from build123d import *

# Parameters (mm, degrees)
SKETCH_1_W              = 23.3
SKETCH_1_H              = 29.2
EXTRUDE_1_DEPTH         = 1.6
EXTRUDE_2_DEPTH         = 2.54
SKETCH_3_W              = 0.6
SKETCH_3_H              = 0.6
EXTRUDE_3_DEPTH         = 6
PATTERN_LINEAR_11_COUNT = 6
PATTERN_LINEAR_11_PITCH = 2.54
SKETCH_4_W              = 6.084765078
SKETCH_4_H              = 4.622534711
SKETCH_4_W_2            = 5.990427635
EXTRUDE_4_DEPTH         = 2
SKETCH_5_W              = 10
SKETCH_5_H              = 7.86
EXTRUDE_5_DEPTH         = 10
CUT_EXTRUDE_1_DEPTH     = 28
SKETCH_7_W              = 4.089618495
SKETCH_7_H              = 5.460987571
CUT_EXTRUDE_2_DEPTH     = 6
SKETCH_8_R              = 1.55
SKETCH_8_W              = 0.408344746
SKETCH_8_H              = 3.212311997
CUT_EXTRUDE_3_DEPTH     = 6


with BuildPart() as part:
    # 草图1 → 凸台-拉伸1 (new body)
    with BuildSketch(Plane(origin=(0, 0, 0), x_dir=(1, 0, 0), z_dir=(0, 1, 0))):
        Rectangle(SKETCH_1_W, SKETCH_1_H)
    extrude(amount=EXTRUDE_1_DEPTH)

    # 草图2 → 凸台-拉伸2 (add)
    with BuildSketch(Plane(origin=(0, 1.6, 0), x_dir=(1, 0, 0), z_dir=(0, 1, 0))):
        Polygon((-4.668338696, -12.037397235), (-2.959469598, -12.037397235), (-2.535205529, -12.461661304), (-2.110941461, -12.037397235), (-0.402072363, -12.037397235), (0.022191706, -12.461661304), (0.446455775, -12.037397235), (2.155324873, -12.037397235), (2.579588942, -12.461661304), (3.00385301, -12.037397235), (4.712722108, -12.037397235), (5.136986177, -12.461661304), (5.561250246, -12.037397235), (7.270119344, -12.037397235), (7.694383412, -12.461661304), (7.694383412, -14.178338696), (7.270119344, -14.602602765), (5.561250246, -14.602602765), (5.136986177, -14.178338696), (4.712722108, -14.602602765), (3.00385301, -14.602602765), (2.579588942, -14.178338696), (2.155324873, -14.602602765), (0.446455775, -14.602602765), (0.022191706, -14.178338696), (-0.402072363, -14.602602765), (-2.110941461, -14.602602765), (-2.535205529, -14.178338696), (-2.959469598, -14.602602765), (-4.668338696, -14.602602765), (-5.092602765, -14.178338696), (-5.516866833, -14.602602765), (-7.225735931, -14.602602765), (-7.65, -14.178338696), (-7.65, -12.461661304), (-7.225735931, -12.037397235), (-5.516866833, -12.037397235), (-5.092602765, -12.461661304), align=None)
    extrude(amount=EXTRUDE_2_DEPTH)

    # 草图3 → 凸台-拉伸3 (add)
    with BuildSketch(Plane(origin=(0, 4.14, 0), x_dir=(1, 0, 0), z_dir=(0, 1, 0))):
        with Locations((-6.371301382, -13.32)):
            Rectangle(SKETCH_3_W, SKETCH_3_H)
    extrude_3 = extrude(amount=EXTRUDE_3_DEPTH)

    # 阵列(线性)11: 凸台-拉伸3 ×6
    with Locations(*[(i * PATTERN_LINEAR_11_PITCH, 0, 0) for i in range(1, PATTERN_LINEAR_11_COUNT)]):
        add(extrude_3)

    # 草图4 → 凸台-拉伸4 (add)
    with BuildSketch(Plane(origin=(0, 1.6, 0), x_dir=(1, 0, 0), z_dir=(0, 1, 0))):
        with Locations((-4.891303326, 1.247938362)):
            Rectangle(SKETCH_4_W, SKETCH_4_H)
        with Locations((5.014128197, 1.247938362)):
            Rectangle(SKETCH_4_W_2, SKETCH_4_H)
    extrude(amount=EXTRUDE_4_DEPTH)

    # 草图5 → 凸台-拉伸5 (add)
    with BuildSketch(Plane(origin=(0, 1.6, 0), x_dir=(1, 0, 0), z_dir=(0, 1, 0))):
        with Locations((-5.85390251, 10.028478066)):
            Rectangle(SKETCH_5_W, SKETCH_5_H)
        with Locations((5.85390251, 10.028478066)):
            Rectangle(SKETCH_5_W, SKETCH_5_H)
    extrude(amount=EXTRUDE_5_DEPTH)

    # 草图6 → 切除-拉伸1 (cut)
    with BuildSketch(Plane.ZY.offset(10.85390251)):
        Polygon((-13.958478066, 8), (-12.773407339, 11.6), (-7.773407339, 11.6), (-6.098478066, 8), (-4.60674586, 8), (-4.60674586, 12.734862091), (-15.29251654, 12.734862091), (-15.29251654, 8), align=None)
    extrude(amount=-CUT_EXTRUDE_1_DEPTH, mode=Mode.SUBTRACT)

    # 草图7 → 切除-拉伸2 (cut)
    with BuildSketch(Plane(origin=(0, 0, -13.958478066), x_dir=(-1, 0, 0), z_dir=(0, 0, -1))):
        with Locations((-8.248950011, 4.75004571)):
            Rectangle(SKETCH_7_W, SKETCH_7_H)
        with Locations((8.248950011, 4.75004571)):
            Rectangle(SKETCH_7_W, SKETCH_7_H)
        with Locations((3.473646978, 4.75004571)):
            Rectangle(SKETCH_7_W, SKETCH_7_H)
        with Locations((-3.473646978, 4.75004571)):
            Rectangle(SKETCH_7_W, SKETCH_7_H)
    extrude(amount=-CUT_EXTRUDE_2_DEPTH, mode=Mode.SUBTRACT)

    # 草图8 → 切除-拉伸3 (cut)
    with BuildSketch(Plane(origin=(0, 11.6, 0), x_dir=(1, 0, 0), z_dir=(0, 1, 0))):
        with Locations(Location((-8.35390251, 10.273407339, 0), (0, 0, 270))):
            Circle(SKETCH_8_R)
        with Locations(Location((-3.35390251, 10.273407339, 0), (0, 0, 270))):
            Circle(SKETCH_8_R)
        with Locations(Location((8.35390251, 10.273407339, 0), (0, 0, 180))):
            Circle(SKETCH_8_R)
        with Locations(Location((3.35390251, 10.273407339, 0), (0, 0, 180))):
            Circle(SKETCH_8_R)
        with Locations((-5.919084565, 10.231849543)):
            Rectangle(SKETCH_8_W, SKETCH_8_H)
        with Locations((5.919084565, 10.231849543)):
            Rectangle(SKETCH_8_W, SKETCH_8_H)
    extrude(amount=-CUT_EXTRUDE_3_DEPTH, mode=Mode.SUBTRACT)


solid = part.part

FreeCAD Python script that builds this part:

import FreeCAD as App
import Part
import Sketcher

V = App.Vector

doc = App.newDocument("Part")
body = doc.addObject("PartDesign::Body", "Body")

# Sketch on XZ plane
sketch1 = body.newObject("Sketcher::SketchObject", "Sketch")
sketch1.AttachmentSupport = (doc.getObject("XZ_Plane"), [""])
sketch1.MapMode = "FlatFace"
sketch1.addGeometry(Part.LineSegment(V(-12, -15, 0), V(-12, 15, 0)), False)
sketch1.addGeometry(Part.LineSegment(V(-12, 15, 0), V(12, 15, 0)), False)
sketch1.addGeometry(Part.LineSegment(V(12, 15, 0), V(12, -15, 0)), False)
sketch1.addGeometry(Part.LineSegment(V(12, -15, 0), V(-12, -15, 0)), False)
sketch1.addConstraint(Sketcher.Constraint("Coincident", 0, 2, 1, 1))
sketch1.addConstraint(Sketcher.Constraint("Coincident", 1, 2, 2, 1))
sketch1.addConstraint(Sketcher.Constraint("Coincident", 2, 2, 3, 1))
sketch1.addConstraint(Sketcher.Constraint("Coincident", 3, 2, 0, 1))
sketch1.addConstraint(Sketcher.Constraint("Vertical", 0))
sketch1.addConstraint(Sketcher.Constraint("Horizontal", 1))
sketch1.addConstraint(Sketcher.Constraint("Vertical", 2))
sketch1.addConstraint(Sketcher.Constraint("Horizontal", 3))
sketch1.addConstraint(Sketcher.Constraint("Symmetric", 0, 2, 2, 2, -1, 1))
sketch1.addConstraint(Sketcher.Constraint("DistanceX", 1, 1, 1, 2, 23.3))
sketch1.addConstraint(Sketcher.Constraint("DistanceY", 0, 1, 0, 2, 29.2))
pad1 = body.newObject("PartDesign::Pad", "Pad")
pad1.Profile = sketch1
pad1.Length = 1.6
pad1.Reversed = True

# Sketch on XZ plane
sketch2 = body.newObject("Sketcher::SketchObject", "Sketch001")
sketch2.AttachmentSupport = (doc.getObject("XZ_Plane"), [""])
sketch2.MapMode = "FlatFace"
sketch2.AttachmentOffset = App.Placement(V(0, 0, -1.6), App.Rotation())
sketch2.addGeometry(Part.LineSegment(V(-3, 12, 0), V(-4.7, 12, 0)), False)
sketch2.addGeometry(Part.LineSegment(V(-4.7, 12, 0), V(-5.1, 12.5, 0)), False)
sketch2.addGeometry(Part.LineSegment(V(-5.1, 12.5, 0), V(-5.5, 12, 0)), False)
sketch2.addGeometry(Part.LineSegment(V(-5.5, 12, 0), V(-7.2, 12, 0)), False)
sketch2.addGeometry(Part.LineSegment(V(-7.2, 12, 0), V(-7.7, 12.5, 0)), False)
sketch2.addGeometry(Part.LineSegment(V(-7.7, 12.5, 0), V(-7.7, 14.2, 0)), False)
sketch2.addGeometry(Part.LineSegment(V(-7.7, 14.2, 0), V(-7.2, 14.6, 0)), False)
sketch2.addGeometry(Part.LineSegment(V(-7.2, 14.6, 0), V(-5.5, 14.6, 0)), False)
sketch2.addGeometry(Part.LineSegment(V(-5.5, 14.6, 0), V(-5.1, 14.2, 0)), False)
sketch2.addGeometry(Part.LineSegment(V(-5.1, 14.2, 0), V(-4.7, 14.6, 0)), False)
sketch2.addGeometry(Part.LineSegment(V(-4.7, 14.6, 0), V(-3, 14.6, 0)), False)
sketch2.addGeometry(Part.LineSegment(V(-3, 14.6, 0), V(-2.5, 14.2, 0)), False)
sketch2.addGeometry(Part.LineSegment(V(-2.5, 14.2, 0), V(-2.1, 14.6, 0)), False)
sketch2.addGeometry(Part.LineSegment(V(-2.1, 14.6, 0), V(-0.4, 14.6, 0)), False)
sketch2.addGeometry(Part.LineSegment(V(-0.4, 14.6, 0), V(0, 14.2, 0)), False)
sketch2.addGeometry(Part.LineSegment(V(0, 14.2, 0), V(0.4, 14.6, 0)), False)
sketch2.addGeometry(Part.LineSegment(V(0.4, 14.6, 0), V(2.2, 14.6, 0)), False)
sketch2.addGeometry(Part.LineSegment(V(2.2, 14.6, 0), V(2.6, 14.2, 0)), False)
sketch2.addGeometry(Part.LineSegment(V(2.6, 14.2, 0), V(3, 14.6, 0)), False)
sketch2.addGeometry(Part.LineSegment(V(3, 14.6, 0), V(4.7, 14.6, 0)), False)
sketch2.addGeometry(Part.LineSegment(V(4.7, 14.6, 0), V(5.1, 14.2, 0)), False)
sketch2.addGeometry(Part.LineSegment(V(5.1, 14.2, 0), V(5.6, 14.6, 0)), False)
sketch2.addGeometry(Part.LineSegment(V(5.6, 14.6, 0), V(7.3, 14.6, 0)), False)
sketch2.addGeometry(Part.LineSegment(V(7.3, 14.6, 0), V(7.7, 14.2, 0)), False)
sketch2.addGeometry(Part.LineSegment(V(7.7, 14.2, 0), V(7.7, 12.5, 0)), False)
sketch2.addGeometry(Part.LineSegment(V(7.7, 12.5, 0), V(7.3, 12, 0)), False)
sketch2.addGeometry(Part.LineSegment(V(7.3, 12, 0), V(5.6, 12, 0)), False)
sketch2.addGeometry(Part.LineSegment(V(5.6, 12, 0), V(5.1, 12.5, 0)), False)
sketch2.addGeometry(Part.LineSegment(V(5.1, 12.5, 0), V(4.7, 12, 0)), False)
sketch2.addGeometry(Part.LineSegment(V(4.7, 12, 0), V(3, 12, 0)), False)
sketch2.addGeometry(Part.LineSegment(V(3, 12, 0), V(2.6, 12.5, 0)), False)
sketch2.addGeometry(Part.LineSegment(V(2.6, 12.5, 0), V(2.2, 12, 0)), False)
sketch2.addGeometry(Part.LineSegment(V(2.2, 12, 0), V(0.4, 12, 0)), False)
sketch2.addGeometry(Part.LineSegment(V(0.4, 12, 0), V(0, 12.5, 0)), False)
sketch2.addGeometry(Part.LineSegment(V(0, 12.5, 0), V(-0.4, 12, 0)), False)
sketch2.addGeometry(Part.LineSegment(V(-0.4, 12, 0), V(-2.1, 12, 0)), False)
sketch2.addGeometry(Part.LineSegment(V(-2.1, 12, 0), V(-2.5, 12.5, 0)), False)
sketch2.addGeometry(Part.LineSegment(V(-2.5, 12.5, 0), V(-3, 12, 0)), False)
sketch2.addConstraint(Sketcher.Constraint("Coincident", 0, 2, 1, 1))
sketch2.addConstraint(Sketcher.Constraint("Coincident", 1, 2, 2, 1))
sketch2.addConstraint(Sketcher.Constraint("Coincident", 2, 2, 3, 1))
sketch2.addConstraint(Sketcher.Constraint("Coincident", 3, 2, 4, 1))
sketch2.addConstraint(Sketcher.Constraint("Coincident", 4, 2, 5, 1))
sketch2.addConstraint(Sketcher.Constraint("Coincident", 5, 2, 6, 1))
sketch2.addConstraint(Sketcher.Constraint("Coincident", 6, 2, 7, 1))
sketch2.addConstraint(Sketcher.Constraint("Coincident", 7, 2, 8, 1))
sketch2.addConstraint(Sketcher.Constraint("Coincident", 8, 2, 9, 1))
sketch2.addConstraint(Sketcher.Constraint("Coincident", 9, 2, 10, 1))
sketch2.addConstraint(Sketcher.Constraint("Coincident", 10, 2, 11, 1))
sketch2.addConstraint(Sketcher.Constraint("Coincident", 11, 2, 12, 1))
sketch2.addConstraint(Sketcher.Constraint("Coincident", 12, 2, 13, 1))
sketch2.addConstraint(Sketcher.Constraint("Coincident", 13, 2, 14, 1))
sketch2.addConstraint(Sketcher.Constraint("Coincident", 14, 2, 15, 1))
sketch2.addConstraint(Sketcher.Constraint("Coincident", 15, 2, 16, 1))
sketch2.addConstraint(Sketcher.Constraint("Coincident", 16, 2, 17, 1))
sketch2.addConstraint(Sketcher.Constraint("Coincident", 17, 2, 18, 1))
sketch2.addConstraint(Sketcher.Constraint("Coincident", 18, 2, 19, 1))
sketch2.addConstraint(Sketcher.Constraint("Coincident", 19, 2, 20, 1))
sketch2.addConstraint(Sketcher.Constraint("Coincident", 20, 2, 21, 1))
sketch2.addConstraint(Sketcher.Constraint("Coincident", 21, 2, 22, 1))
sketch2.addConstraint(Sketcher.Constraint("Coincident", 22, 2, 23, 1))
sketch2.addConstraint(Sketcher.Constraint("Coincident", 23, 2, 24, 1))
sketch2.addConstraint(Sketcher.Constraint("Coincident", 24, 2, 25, 1))
sketch2.addConstraint(Sketcher.Constraint("Coincident", 25, 2, 26, 1))
sketch2.addConstraint(Sketcher.Constraint("Coincident", 26, 2, 27, 1))
sketch2.addConstraint(Sketcher.Constraint("Coincident", 27, 2, 28, 1))
sketch2.addConstraint(Sketcher.Constraint("Coincident", 28, 2, 29, 1))
sketch2.addConstraint(Sketcher.Constraint("Coincident", 29, 2, 30, 1))
sketch2.addConstraint(Sketcher.Constraint("Coincident", 30, 2, 31, 1))
sketch2.addConstraint(Sketcher.Constraint("Coincident", 31, 2, 32, 1))
sketch2.addConstraint(Sketcher.Constraint("Coincident", 32, 2, 33, 1))
sketch2.addConstraint(Sketcher.Constraint("Coincident", 33, 2, 34, 1))
sketch2.addConstraint(Sketcher.Constraint("Coincident", 34, 2, 35, 1))
sketch2.addConstraint(Sketcher.Constraint("Coincident", 35, 2, 36, 1))
sketch2.addConstraint(Sketcher.Constraint("Coincident", 36, 2, 37, 1))
sketch2.addConstraint(Sketcher.Constraint("Coincident", 37, 2, 0, 1))
sketch2.addConstraint(Sketcher.Constraint("Horizontal", 0))
sketch2.addConstraint(Sketcher.Constraint("Horizontal", 3))
sketch2.addConstraint(Sketcher.Constraint("Vertical", 5))
sketch2.addConstraint(Sketcher.Constraint("Horizontal", 7))
sketch2.addConstraint(Sketcher.Constraint("Horizontal", 10))
sketch2.addConstraint(Sketcher.Constraint("Horizontal", 13))
sketch2.addConstraint(Sketcher.Constraint("Horizontal", 16))
sketch2.addConstraint(Sketcher.Constraint("Horizontal", 19))
sketch2.addConstraint(Sketcher.Constraint("Horizontal", 22))
sketch2.addConstraint(Sketcher.Constraint("Vertical", 24))
sketch2.addConstraint(Sketcher.Constraint("Horizontal", 26))
sketch2.addConstraint(Sketcher.Constraint("Horizontal", 29))
sketch2.addConstraint(Sketcher.Constraint("Horizontal", 32))
sketch2.addConstraint(Sketcher.Constraint("Horizontal", 35))
sketch2.addConstraint(Sketcher.Constraint("Perpendicular", 1, 2))
sketch2.addConstraint(Sketcher.Constraint("Perpendicular", 2, 4))
sketch2.addConstraint(Sketcher.Constraint("Perpendicular", 4, 6))
sketch2.addConstraint(Sketcher.Constraint("Perpendicular", 6, 8))
sketch2.addConstraint(Sketcher.Constraint("Perpendicular", 8, 9))
sketch2.addConstraint(Sketcher.Constraint("Perpendicular", 9, 11))
sketch2.addConstraint(Sketcher.Constraint("Perpendicular", 11, 12))
sketch2.addConstraint(Sketcher.Constraint("Perpendicular", 12, 14))
sketch2.addConstraint(Sketcher.Constraint("Perpendicular", 14, 15))
sketch2.addConstraint(Sketcher.Constraint("Perpendicular", 15, 17))
sketch2.addConstraint(Sketcher.Constraint("Perpendicular", 17, 18))
sketch2.addConstraint(Sketcher.Constraint("Perpendicular", 18, 20))
sketch2.addConstraint(Sketcher.Constraint("Perpendicular", 20, 21))
sketch2.addConstraint(Sketcher.Constraint("Perpendicular", 21, 23))
sketch2.addConstraint(Sketcher.Constraint("Perpendicular", 23, 25))
sketch2.addConstraint(Sketcher.Constraint("Perpendicular", 25, 27))
sketch2.addConstraint(Sketcher.Constraint("Perpendicular", 27, 28))
sketch2.addConstraint(Sketcher.Constraint("Perpendicular", 28, 30))
sketch2.addConstraint(Sketcher.Constraint("Perpendicular", 30, 31))
sketch2.addConstraint(Sketcher.Constraint("Perpendicular", 31, 33))
sketch2.addConstraint(Sketcher.Constraint("Perpendicular", 33, 34))
sketch2.addConstraint(Sketcher.Constraint("Perpendicular", 34, 36))
sketch2.addConstraint(Sketcher.Constraint("Perpendicular", 36, 37))
sketch2.addConstraint(Sketcher.Constraint("Horizontal", 0, 2, 2, 2))
sketch2.addConstraint(Sketcher.Constraint("Horizontal", 1, 2, 4, 2))
sketch2.addConstraint(Sketcher.Constraint("Horizontal", 5, 2, 8, 2))
sketch2.addConstraint(Sketcher.Constraint("Horizontal", 7, 2, 9, 2))
sketch2.addConstraint(Sketcher.Constraint("Horizontal", 8, 2, 11, 2))
sketch2.addConstraint(Sketcher.Constraint("Horizontal", 10, 2, 12, 2))
sketch2.addConstraint(Sketcher.Constraint("Horizontal", 11, 2, 14, 2))
sketch2.addConstraint(Sketcher.Constraint("Horizontal", 13, 2, 15, 2))
sketch2.addConstraint(Sketcher.Constraint("Horizontal", 14, 2, 17, 2))
sketch2.addConstraint(Sketcher.Constraint("Horizontal", 16, 2, 18, 2))
sketch2.addConstraint(Sketcher.Constraint("Horizontal", 17, 2, 20, 2))
sketch2.addConstraint(Sketcher.Constraint("Horizontal", 19, 2, 21, 2))
sketch2.addConstraint(Sketcher.Constraint("Horizontal", 20, 2, 23, 2))
sketch2.addConstraint(Sketcher.Constraint("Horizontal", 4, 2, 24, 2))
sketch2.addConstraint(Sketcher.Constraint("Horizontal", 3, 2, 25, 2))
sketch2.addConstraint(Sketcher.Constraint("Horizontal", 24, 2, 27, 2))
sketch2.addConstraint(Sketcher.Constraint("Horizontal", 26, 2, 28, 2))
sketch2.addConstraint(Sketcher.Constraint("Horizontal", 27, 2, 30, 2))
sketch2.addConstraint(Sketcher.Constraint("Horizontal", 29, 2, 31, 2))
sketch2.addConstraint(Sketcher.Constraint("Horizontal", 30, 2, 33, 2))
sketch2.addConstraint(Sketcher.Constraint("Horizontal", 32, 2, 34, 2))
sketch2.addConstraint(Sketcher.Constraint("Horizontal", 33, 2, 36, 2))
sketch2.addConstraint(Sketcher.Constraint("Vertical", 3, 2, 6, 2))
sketch2.addConstraint(Sketcher.Constraint("Vertical", 2, 2, 7, 2))
sketch2.addConstraint(Sketcher.Constraint("Vertical", 1, 2, 8, 2))
sketch2.addConstraint(Sketcher.Constraint("Vertical", 21, 2, 26, 2))
sketch2.addConstraint(Sketcher.Constraint("Vertical", 18, 2, 29, 2))
sketch2.addConstraint(Sketcher.Constraint("Vertical", 15, 2, 32, 2))
sketch2.addConstraint(Sketcher.Constraint("Vertical", 12, 2, 35, 2))
sketch2.addConstraint(Sketcher.Constraint("Equal", 0, 3))
sketch2.addConstraint(Sketcher.Constraint("Equal", 10, 13))
sketch2.addConstraint(Sketcher.Constraint("Equal", 13, 16))
sketch2.addConstraint(Sketcher.Constraint("Equal", 16, 19))
sketch2.addConstraint(Sketcher.Constraint("Equal", 19, 22))
sketch2.addConstraint(Sketcher.Constraint("Distance", 1, 0.6))
sketch2.addConstraint(Sketcher.Constraint("DistanceX", 4, 2, -1, 1, 7.65))
sketch2.addConstraint(Sketcher.Constraint("DistanceX", 0, 2, 0, 1, 1.708869))
sketch2.addConstraint(Sketcher.Constraint("DistanceY", 5, 1, 5, 2, 1.716677))
sketch2.addConstraint(Sketcher.Constraint("DistanceY", -1, 1, 1, 2, 12.461661))
pad2 = body.newObject("PartDesign::Pad", "Pad001")
pad2.Profile = sketch2
pad2.Length = 2.54
pad2.Reversed = True

# Sketch on XZ plane
sketch3 = body.newObject("Sketcher::SketchObject", "Sketch002")
sketch3.AttachmentSupport = (doc.getObject("XZ_Plane"), [""])
sketch3.MapMode = "FlatFace"
sketch3.AttachmentOffset = App.Placement(V(0, 0, -4.14), App.Rotation())
sketch3.addGeometry(Part.LineSegment(V(-6.7, 13, 0), V(-6.7, 13.6, 0)), False)
sketch3.addGeometry(Part.LineSegment(V(-6.7, 13.6, 0), V(-6.1, 13.6, 0)), False)
sketch3.addGeometry(Part.LineSegment(V(-6.1, 13.6, 0), V(-6.1, 13, 0)), False)
sketch3.addGeometry(Part.LineSegment(V(-6.1, 13, 0), V(-6.7, 13, 0)), False)
sketch3.addConstraint(Sketcher.Constraint("Coincident", 0, 2, 1, 1))
sketch3.addConstraint(Sketcher.Constraint("Coincident", 1, 2, 2, 1))
sketch3.addConstraint(Sketcher.Constraint("Coincident", 2, 2, 3, 1))
sketch3.addConstraint(Sketcher.Constraint("Coincident", 3, 2, 0, 1))
sketch3.addConstraint(Sketcher.Constraint("Vertical", 0))
sketch3.addConstraint(Sketcher.Constraint("Horizontal", 1))
sketch3.addConstraint(Sketcher.Constraint("Vertical", 2))
sketch3.addConstraint(Sketcher.Constraint("Horizontal", 3))
sketch3.addConstraint(Sketcher.Constraint("Equal", 3, 0))
sketch3.addConstraint(Sketcher.Constraint("DistanceX", 1, 1, 1, 2, 0.6))
sketch3.addConstraint(Sketcher.Constraint("DistanceY", -1, 1, 0, 2, 13.62))
sketch3.addConstraint(Sketcher.Constraint("DistanceX", 0, 2, -1, 1, 6.671301))
pad3 = body.newObject("PartDesign::Pad", "Pad002")
pad3.Profile = sketch3
pad3.Length = 6
pad3.Reversed = True
doc.recompute()

linearpattern = body.newObject("PartDesign::LinearPattern", "LinearPattern")
linearpattern.Originals = [pad3]
linearpattern.Direction = (doc.getObject("X_Axis"), [""])
linearpattern.Mode = "offset"
linearpattern.Offset = 2.54
linearpattern.Occurrences = 6
body.Tip = linearpattern

# Sketch on XZ plane
sketch4 = body.newObject("Sketcher::SketchObject", "Sketch003")
sketch4.AttachmentSupport = (doc.getObject("XZ_Plane"), [""])
sketch4.MapMode = "FlatFace"
sketch4.AttachmentOffset = App.Placement(V(0, 0, -1.6), App.Rotation())
sketch4.addGeometry(Part.LineSegment(V(-7.9, -3.6, 0), V(-7.9, 1.1, 0)), False)
sketch4.addGeometry(Part.LineSegment(V(-7.9, 1.1, 0), V(-1.8, 1.1, 0)), False)
sketch4.addGeometry(Part.LineSegment(V(-1.8, 1.1, 0), V(-1.8, -3.6, 0)), False)
sketch4.addGeometry(Part.LineSegment(V(-1.8, -3.6, 0), V(-7.9, -3.6, 0)), False)
sketch4.addGeometry(Part.LineSegment(V(2, -3.6, 0), V(2, 1.1, 0)), False)
sketch4.addGeometry(Part.LineSegment(V(2, 1.1, 0), V(8, 1.1, 0)), False)
sketch4.addGeometry(Part.LineSegment(V(8, 1.1, 0), V(8, -3.6, 0)), False)
sketch4.addGeometry(Part.LineSegment(V(8, -3.6, 0), V(2, -3.6, 0)), False)
sketch4.addConstraint(Sketcher.Constraint("Coincident", 0, 2, 1, 1))
sketch4.addConstraint(Sketcher.Constraint("Coincident", 1, 2, 2, 1))
sketch4.addConstraint(Sketcher.Constraint("Coincident", 2, 2, 3, 1))
sketch4.addConstraint(Sketcher.Constraint("Coincident", 3, 2, 0, 1))
sketch4.addConstraint(Sketcher.Constraint("Coincident", 4, 2, 5, 1))
sketch4.addConstraint(Sketcher.Constraint("Coincident", 5, 2, 6, 1))
sketch4.addConstraint(Sketcher.Constraint("Coincident", 6, 2, 7, 1))
sketch4.addConstraint(Sketcher.Constraint("Coincident", 7, 2, 4, 1))
sketch4.addConstraint(Sketcher.Constraint("Vertical", 0))
sketch4.addConstraint(Sketcher.Constraint("Horizontal", 1))
sketch4.addConstraint(Sketcher.Constraint("Vertical", 2))
sketch4.addConstraint(Sketcher.Constraint("Horizontal", 3))
sketch4.addConstraint(Sketcher.Constraint("Vertical", 4))
sketch4.addConstraint(Sketcher.Constraint("Horizontal", 5))
sketch4.addConstraint(Sketcher.Constraint("Vertical", 6))
sketch4.addConstraint(Sketcher.Constraint("Horizontal", 7))
sketch4.addConstraint(Sketcher.Constraint("Horizontal", 1, 2, 4, 2))
sketch4.addConstraint(Sketcher.Constraint("Horizontal", 3, 2, 6, 2))
sketch4.addConstraint(Sketcher.Constraint("DistanceX", 0, 2, 4, 2, 9.9526))
sketch4.addConstraint(Sketcher.Constraint("DistanceX", 1, 1, 1, 2, 6.084765))
sketch4.addConstraint(Sketcher.Constraint("DistanceX", 5, 1, 5, 2, 5.990428))
sketch4.addConstraint(Sketcher.Constraint("DistanceY", 0, 1, 0, 2, 4.622535))
sketch4.addConstraint(Sketcher.Constraint("DistanceY", -1, 1, 0, 2, 1.063329))
sketch4.addConstraint(Sketcher.Constraint("DistanceX", 1, 2, -1, 1, 1.848921))
pad4 = body.newObject("PartDesign::Pad", "Pad003")
pad4.Profile = sketch4
pad4.Length = 2
pad4.Reversed = True

# Sketch on XZ plane
sketch5 = body.newObject("Sketcher::SketchObject", "Sketch004")
sketch5.AttachmentSupport = (doc.getObject("XZ_Plane"), [""])
sketch5.MapMode = "FlatFace"
sketch5.AttachmentOffset = App.Placement(V(0, 0, -1.6), App.Rotation())
sketch5.addGeometry(Part.LineSegment(V(-11, -14, 0), V(-11, -6, 0)), False)
sketch5.addGeometry(Part.LineSegment(V(-11, -6, 0), V(-1, -6, 0)), False)
sketch5.addGeometry(Part.LineSegment(V(-1, -6, 0), V(-1, -14, 0)), False)
sketch5.addGeometry(Part.LineSegment(V(-1, -14, 0), V(-11, -14, 0)), False)
sketch5.addGeometry(Part.LineSegment(V(1, -14, 0), V(1, -6, 0)), False)
sketch5.addGeometry(Part.LineSegment(V(1, -6, 0), V(11, -6, 0)), False)
sketch5.addGeometry(Part.LineSegment(V(11, -6, 0), V(11, -14, 0)), False)
sketch5.addGeometry(Part.LineSegment(V(11, -14, 0), V(1, -14, 0)), False)
sketch5.addConstraint(Sketcher.Constraint("Coincident", 0, 2, 1, 1))
sketch5.addConstraint(Sketcher.Constraint("Coincident", 1, 2, 2, 1))
sketch5.addConstraint(Sketcher.Constraint("Coincident", 2, 2, 3, 1))
sketch5.addConstraint(Sketcher.Constraint("Coincident", 3, 2, 0, 1))
sketch5.addConstraint(Sketcher.Constraint("Coincident", 4, 2, 5, 1))
sketch5.addConstraint(Sketcher.Constraint("Coincident", 5, 2, 6, 1))
sketch5.addConstraint(Sketcher.Constraint("Coincident", 6, 2, 7, 1))
sketch5.addConstraint(Sketcher.Constraint("Coincident", 7, 2, 4, 1))
sketch5.addConstraint(Sketcher.Constraint("Vertical", 0))
sketch5.addConstraint(Sketcher.Constraint("Horizontal", 1))
sketch5.addConstraint(Sketcher.Constraint("Vertical", 2))
sketch5.addConstraint(Sketcher.Constraint("Horizontal", 3))
sketch5.addConstraint(Sketcher.Constraint("Vertical", 4))
sketch5.addConstraint(Sketcher.Constraint("Horizontal", 5))
sketch5.addConstraint(Sketcher.Constraint("Vertical", 6))
sketch5.addConstraint(Sketcher.Constraint("Horizontal", 7))
sketch5.addConstraint(Sketcher.Constraint("Symmetric", 1, 2, 4, 2, -2))
sketch5.addConstraint(Sketcher.Constraint("Symmetric", 3, 2, 6, 2, -2))
sketch5.addConstraint(Sketcher.Constraint("DistanceX", 1, 1, 1, 2, 10.0))
sketch5.addConstraint(Sketcher.Constraint("DistanceY", 0, 1, 0, 2, 7.86))
sketch5.addConstraint(Sketcher.Constraint("DistanceY", 0, 2, -1, 1, 6.098478))
sketch5.addConstraint(Sketcher.Constraint("DistanceX", 0, 2, -1, 1, 10.853903))
pad5 = body.newObject("PartDesign::Pad", "Pad004")
pad5.Profile = sketch5
pad5.Length = 10
pad5.Reversed = True

# Sketch on YZ plane
sketch6 = body.newObject("Sketcher::SketchObject", "Sketch005")
sketch6.AttachmentSupport = (doc.getObject("YZ_Plane"), [""])
sketch6.MapMode = "FlatFace"
sketch6.AttachmentOffset = App.Placement(V(0, 0, -10.853903), App.Rotation())
sketch6.addGeometry(Part.LineSegment(V(8, -14, 0), V(11.6, -12.8, 0)), False)
sketch6.addGeometry(Part.LineSegment(V(11.6, -12.8, 0), V(11.6, -7.8, 0)), False)
sketch6.addGeometry(Part.LineSegment(V(11.6, -7.8, 0), V(8, -6.1, 0)), False)
sketch6.addGeometry(Part.LineSegment(V(8, -6.1, 0), V(8, -4.6, 0)), False)
sketch6.addGeometry(Part.LineSegment(V(8, -4.6, 0), V(12.7, -4.6, 0)), False)
sketch6.addGeometry(Part.LineSegment(V(12.7, -4.6, 0), V(12.7, -15.3, 0)), False)
sketch6.addGeometry(Part.LineSegment(V(12.7, -15.3, 0), V(8, -15.3, 0)), False)
sketch6.addGeometry(Part.LineSegment(V(8, -15.3, 0), V(8, -14, 0)), False)
sketch6.addConstraint(Sketcher.Constraint("Coincident", 0, 2, 1, 1))
sketch6.addConstraint(Sketcher.Constraint("Coincident", 1, 2, 2, 1))
sketch6.addConstraint(Sketcher.Constraint("Coincident", 2, 2, 3, 1))
sketch6.addConstraint(Sketcher.Constraint("Coincident", 3, 2, 4, 1))
sketch6.addConstraint(Sketcher.Constraint("Coincident", 4, 2, 5, 1))
sketch6.addConstraint(Sketcher.Constraint("Coincident", 5, 2, 6, 1))
sketch6.addConstraint(Sketcher.Constraint("Coincident", 6, 2, 7, 1))
sketch6.addConstraint(Sketcher.Constraint("Coincident", 7, 2, 0, 1))
sketch6.addConstraint(Sketcher.Constraint("Vertical", 1))
sketch6.addConstraint(Sketcher.Constraint("Vertical", 3))
sketch6.addConstraint(Sketcher.Constraint("Horizontal", 4))
sketch6.addConstraint(Sketcher.Constraint("Vertical", 5))
sketch6.addConstraint(Sketcher.Constraint("Horizontal", 6))
sketch6.addConstraint(Sketcher.Constraint("Vertical", 7))
sketch6.addConstraint(Sketcher.Constraint("Vertical", 3, 2, 6, 2))
sketch6.addConstraint(Sketcher.Constraint("DistanceY", 1, 1, 1, 2, 5.0))
sketch6.addConstraint(Sketcher.Constraint("DistanceX", -1, 1, 2, 2, 8.0))
sketch6.addConstraint(Sketcher.Constraint("DistanceX", -1, 1, 0, 2, 11.6))
sketch6.addConstraint(Sketcher.Constraint("DistanceY", 7, 2, 2, 2, 7.86))
sketch6.addConstraint(Sketcher.Constraint("DistanceY", 5, 2, 5, 1, 10.685771))
sketch6.addConstraint(Sketcher.Constraint("DistanceY", 7, 1, 7, 2, 1.334038))
sketch6.addConstraint(Sketcher.Constraint("Distance", 0, 3.790039))
sketch6.addConstraint(Sketcher.Constraint("DistanceX", 4, 1, 4, 2, 4.734862))
sketch6.addConstraint(Sketcher.Constraint("DistanceY", 2, 2, -1, 1, 6.098478))
pocket1 = body.newObject("PartDesign::Pocket", "Pocket")
pocket1.Profile = sketch6
pocket1.Length = 28
pocket1.Reversed = True

# Sketch on XY plane
sketch7 = body.newObject("Sketcher::SketchObject", "Sketch006")
sketch7.AttachmentSupport = (doc.getObject("XY_Plane"), [""])
sketch7.MapMode = "FlatFace"
sketch7.AttachmentOffset = App.Placement(V(0, 0, -13.958478), App.Rotation())
sketch7.addGeometry(Part.LineSegment(V(10.3, 7.5, 0), V(10.3, 2, 0)), False)
sketch7.addGeometry(Part.LineSegment(V(10.3, 2, 0), V(6.2, 2, 0)), False)
sketch7.addGeometry(Part.LineSegment(V(6.2, 2, 0), V(6.2, 7.5, 0)), False)
sketch7.addGeometry(Part.LineSegment(V(6.2, 7.5, 0), V(10.3, 7.5, 0)), False)
sketch7.addGeometry(Part.LineSegment(V(-6.2, 7.5, 0), V(-6.2, 2, 0)), False)
sketch7.addGeometry(Part.LineSegment(V(-6.2, 2, 0), V(-10.3, 2, 0)), False)
sketch7.addGeometry(Part.LineSegment(V(-10.3, 2, 0), V(-10.3, 7.5, 0)), False)
sketch7.addGeometry(Part.LineSegment(V(-10.3, 7.5, 0), V(-6.2, 7.5, 0)), False)
sketch7.addGeometry(Part.LineSegment(V(-1.4, 7.5, 0), V(-1.4, 2, 0)), False)
sketch7.addGeometry(Part.LineSegment(V(-1.4, 2, 0), V(-5.5, 2, 0)), False)
sketch7.addGeometry(Part.LineSegment(V(-5.5, 2, 0), V(-5.5, 7.5, 0)), False)
sketch7.addGeometry(Part.LineSegment(V(-5.5, 7.5, 0), V(-1.4, 7.5, 0)), False)
sketch7.addGeometry(Part.LineSegment(V(5.5, 7.5, 0), V(5.5, 2, 0)), False)
sketch7.addGeometry(Part.LineSegment(V(5.5, 2, 0), V(1.4, 2, 0)), False)
sketch7.addGeometry(Part.LineSegment(V(1.4, 2, 0), V(1.4, 7.5, 0)), False)
sketch7.addGeometry(Part.LineSegment(V(1.4, 7.5, 0), V(5.5, 7.5, 0)), False)
sketch7.addConstraint(Sketcher.Constraint("Coincident", 0, 2, 1, 1))
sketch7.addConstraint(Sketcher.Constraint("Coincident", 1, 2, 2, 1))
sketch7.addConstraint(Sketcher.Constraint("Coincident", 2, 2, 3, 1))
sketch7.addConstraint(Sketcher.Constraint("Coincident", 3, 2, 0, 1))
sketch7.addConstraint(Sketcher.Constraint("Coincident", 4, 2, 5, 1))
sketch7.addConstraint(Sketcher.Constraint("Coincident", 5, 2, 6, 1))
sketch7.addConstraint(Sketcher.Constraint("Coincident", 6, 2, 7, 1))
sketch7.addConstraint(Sketcher.Constraint("Coincident", 7, 2, 4, 1))
sketch7.addConstraint(Sketcher.Constraint("Coincident", 8, 2, 9, 1))
sketch7.addConstraint(Sketcher.Constraint("Coincident", 9, 2, 10, 1))
sketch7.addConstraint(Sketcher.Constraint("Coincident", 10, 2, 11, 1))
sketch7.addConstraint(Sketcher.Constraint("Coincident", 11, 2, 8, 1))
sketch7.addConstraint(Sketcher.Constraint("Coincident", 12, 2, 13, 1))
sketch7.addConstraint(Sketcher.Constraint("Coincident", 13, 2, 14, 1))
sketch7.addConstraint(Sketcher.Constraint("Coincident", 14, 2, 15, 1))
sketch7.addConstraint(Sketcher.Constraint("Coincident", 15, 2, 12, 1))
sketch7.addConstraint(Sketcher.Constraint("Vertical", 0))
sketch7.addConstraint(Sketcher.Constraint("Horizontal", 1))
sketch7.addConstraint(Sketcher.Constraint("Vertical", 2))
sketch7.addConstraint(Sketcher.Constraint("Horizontal", 3))
sketch7.addConstraint(Sketcher.Constraint("Vertical", 4))
sketch7.addConstraint(Sketcher.Constraint("Horizontal", 5))
sketch7.addConstraint(Sketcher.Constraint("Vertical", 6))
sketch7.addConstraint(Sketcher.Constraint("Horizontal", 7))
sketch7.addConstraint(Sketcher.Constraint("Vertical", 8))
sketch7.addConstraint(Sketcher.Constraint("Horizontal", 9))
sketch7.addConstraint(Sketcher.Constraint("Vertical", 10))
sketch7.addConstraint(Sketcher.Constraint("Horizontal", 11))
sketch7.addConstraint(Sketcher.Constraint("Vertical", 12))
sketch7.addConstraint(Sketcher.Constraint("Horizontal", 13))
sketch7.addConstraint(Sketcher.Constraint("Vertical", 14))
sketch7.addConstraint(Sketcher.Constraint("Horizontal", 15))
sketch7.addConstraint(Sketcher.Constraint("Symmetric", 1, 2, 4, 2, -2))
sketch7.addConstraint(Sketcher.Constraint("Symmetric", 3, 2, 6, 2, -2))
sketch7.addConstraint(Sketcher.Constraint("Symmetric", 9, 2, 12, 2, -2))
sketch7.addConstraint(Sketcher.Constraint("Symmetric", 11, 2, 14, 2, -2))
sketch7.addConstraint(Sketcher.Constraint("Horizontal", 5, 2, 8, 2))
sketch7.addConstraint(Sketcher.Constraint("Horizontal", 7, 2, 10, 2))
sketch7.addConstraint(Sketcher.Constraint("Equal", 7, 9))
sketch7.addConstraint(Sketcher.Constraint("DistanceX", 1, 2, 1, 1, 4.089618))
sketch7.addConstraint(Sketcher.Constraint("DistanceX", 4, 2, 0, 2, 16.4979))
sketch7.addConstraint(Sketcher.Constraint("DistanceY", 0, 2, 0, 1, 5.460988))
sketch7.addConstraint(Sketcher.Constraint("DistanceY", -1, 1, 0, 2, 2.019552))
sketch7.addConstraint(Sketcher.Constraint("DistanceX", 8, 2, 1, 2, 7.632978))
pocket2 = body.newObject("PartDesign::Pocket", "Pocket001")
pocket2.Profile = sketch7
pocket2.Length = 6
pocket2.Reversed = True

# Sketch on XZ plane
sketch8 = body.newObject("Sketcher::SketchObject", "Sketch007")
sketch8.AttachmentSupport = (doc.getObject("XZ_Plane"), [""])
sketch8.MapMode = "FlatFace"
sketch8.AttachmentOffset = App.Placement(V(0, 0, -11.6), App.Rotation())
sketch8.addGeometry(Part.Circle(V(-8.35, -10.27, 0), V(0, 0, 1), 1.55), False)
sketch8.addGeometry(Part.Circle(V(-3.35, -10.27, 0), V(0, 0, 1), 1.55), False)
sketch8.addGeometry(Part.Circle(V(8.35, -10.27, 0), V(0, 0, 1), 1.55), False)
sketch8.addGeometry(Part.Circle(V(3.35, -10.27, 0), V(0, 0, 1), 1.55), False)
sketch8.addGeometry(Part.LineSegment(V(-6.12, -11.84, 0), V(-6.12, -8.63, 0)), False)
sketch8.addGeometry(Part.LineSegment(V(-6.12, -8.63, 0), V(-5.71, -8.63, 0)), False)
sketch8.addGeometry(Part.LineSegment(V(-5.71, -8.63, 0), V(-5.71, -11.84, 0)), False)
sketch8.addGeometry(Part.LineSegment(V(-5.71, -11.84, 0), V(-6.12, -11.84, 0)), False)
sketch8.addGeometry(Part.LineSegment(V(5.71, -11.84, 0), V(5.71, -8.63, 0)), False)
sketch8.addGeometry(Part.LineSegment(V(5.71, -8.63, 0), V(6.12, -8.63, 0)), False)
sketch8.addGeometry(Part.LineSegment(V(6.12, -8.63, 0), V(6.12, -11.84, 0)), False)
sketch8.addGeometry(Part.LineSegment(V(6.12, -11.84, 0), V(5.71, -11.84, 0)), False)
sketch8.addConstraint(Sketcher.Constraint("Coincident", 4, 2, 5, 1))
sketch8.addConstraint(Sketcher.Constraint("Coincident", 5, 2, 6, 1))
sketch8.addConstraint(Sketcher.Constraint("Coincident", 6, 2, 7, 1))
sketch8.addConstraint(Sketcher.Constraint("Coincident", 7, 2, 4, 1))
sketch8.addConstraint(Sketcher.Constraint("Coincident", 8, 2, 9, 1))
sketch8.addConstraint(Sketcher.Constraint("Coincident", 9, 2, 10, 1))
sketch8.addConstraint(Sketcher.Constraint("Coincident", 10, 2, 11, 1))
sketch8.addConstraint(Sketcher.Constraint("Coincident", 11, 2, 8, 1))
sketch8.addConstraint(Sketcher.Constraint("Vertical", 4))
sketch8.addConstraint(Sketcher.Constraint("Horizontal", 5))
sketch8.addConstraint(Sketcher.Constraint("Vertical", 6))
sketch8.addConstraint(Sketcher.Constraint("Horizontal", 7))
sketch8.addConstraint(Sketcher.Constraint("Vertical", 8))
sketch8.addConstraint(Sketcher.Constraint("Horizontal", 9))
sketch8.addConstraint(Sketcher.Constraint("Vertical", 10))
sketch8.addConstraint(Sketcher.Constraint("Horizontal", 11))
sketch8.addConstraint(Sketcher.Constraint("Equal", 0, 1))
sketch8.addConstraint(Sketcher.Constraint("Equal", 1, 2))
sketch8.addConstraint(Sketcher.Constraint("Equal", 2, 3))
sketch8.addConstraint(Sketcher.Constraint("Symmetric", 0, 3, 2, 3, -2))
sketch8.addConstraint(Sketcher.Constraint("Symmetric", 1, 3, 3, 3, -2))
sketch8.addConstraint(Sketcher.Constraint("Symmetric", 5, 2, 8, 2, -2))
sketch8.addConstraint(Sketcher.Constraint("Symmetric", 7, 2, 10, 2, -2))
sketch8.addConstraint(Sketcher.Constraint("Horizontal", 0, 3, 1, 3))
sketch8.addConstraint(Sketcher.Constraint("Diameter", 0, 3.1))
sketch8.addConstraint(Sketcher.Constraint("DistanceX", 0, 3, 1, 3, 5.0))
sketch8.addConstraint(Sketcher.Constraint("DistanceY", 4, 1, 4, 2, 3.212312))
sketch8.addConstraint(Sketcher.Constraint("DistanceY", 6, 2, 1, 3, 1.564598))
sketch8.addConstraint(Sketcher.Constraint("DistanceX", 5, 1, 5, 2, 0.408345))
sketch8.addConstraint(Sketcher.Constraint("DistanceX", 4, 2, 3, 3, 9.477159))
sketch8.addConstraint(Sketcher.Constraint("DistanceX", 5, 2, 1, 3, 2.36101))
sketch8.addConstraint(Sketcher.Constraint("DistanceY", 0, 3, -1, 1, 10.273407))
pocket3 = body.newObject("PartDesign::Pocket", "Pocket002")
pocket3.Profile = sketch8
pocket3.Length = 6
pocket3.Reversed = True

doc.recompute()
